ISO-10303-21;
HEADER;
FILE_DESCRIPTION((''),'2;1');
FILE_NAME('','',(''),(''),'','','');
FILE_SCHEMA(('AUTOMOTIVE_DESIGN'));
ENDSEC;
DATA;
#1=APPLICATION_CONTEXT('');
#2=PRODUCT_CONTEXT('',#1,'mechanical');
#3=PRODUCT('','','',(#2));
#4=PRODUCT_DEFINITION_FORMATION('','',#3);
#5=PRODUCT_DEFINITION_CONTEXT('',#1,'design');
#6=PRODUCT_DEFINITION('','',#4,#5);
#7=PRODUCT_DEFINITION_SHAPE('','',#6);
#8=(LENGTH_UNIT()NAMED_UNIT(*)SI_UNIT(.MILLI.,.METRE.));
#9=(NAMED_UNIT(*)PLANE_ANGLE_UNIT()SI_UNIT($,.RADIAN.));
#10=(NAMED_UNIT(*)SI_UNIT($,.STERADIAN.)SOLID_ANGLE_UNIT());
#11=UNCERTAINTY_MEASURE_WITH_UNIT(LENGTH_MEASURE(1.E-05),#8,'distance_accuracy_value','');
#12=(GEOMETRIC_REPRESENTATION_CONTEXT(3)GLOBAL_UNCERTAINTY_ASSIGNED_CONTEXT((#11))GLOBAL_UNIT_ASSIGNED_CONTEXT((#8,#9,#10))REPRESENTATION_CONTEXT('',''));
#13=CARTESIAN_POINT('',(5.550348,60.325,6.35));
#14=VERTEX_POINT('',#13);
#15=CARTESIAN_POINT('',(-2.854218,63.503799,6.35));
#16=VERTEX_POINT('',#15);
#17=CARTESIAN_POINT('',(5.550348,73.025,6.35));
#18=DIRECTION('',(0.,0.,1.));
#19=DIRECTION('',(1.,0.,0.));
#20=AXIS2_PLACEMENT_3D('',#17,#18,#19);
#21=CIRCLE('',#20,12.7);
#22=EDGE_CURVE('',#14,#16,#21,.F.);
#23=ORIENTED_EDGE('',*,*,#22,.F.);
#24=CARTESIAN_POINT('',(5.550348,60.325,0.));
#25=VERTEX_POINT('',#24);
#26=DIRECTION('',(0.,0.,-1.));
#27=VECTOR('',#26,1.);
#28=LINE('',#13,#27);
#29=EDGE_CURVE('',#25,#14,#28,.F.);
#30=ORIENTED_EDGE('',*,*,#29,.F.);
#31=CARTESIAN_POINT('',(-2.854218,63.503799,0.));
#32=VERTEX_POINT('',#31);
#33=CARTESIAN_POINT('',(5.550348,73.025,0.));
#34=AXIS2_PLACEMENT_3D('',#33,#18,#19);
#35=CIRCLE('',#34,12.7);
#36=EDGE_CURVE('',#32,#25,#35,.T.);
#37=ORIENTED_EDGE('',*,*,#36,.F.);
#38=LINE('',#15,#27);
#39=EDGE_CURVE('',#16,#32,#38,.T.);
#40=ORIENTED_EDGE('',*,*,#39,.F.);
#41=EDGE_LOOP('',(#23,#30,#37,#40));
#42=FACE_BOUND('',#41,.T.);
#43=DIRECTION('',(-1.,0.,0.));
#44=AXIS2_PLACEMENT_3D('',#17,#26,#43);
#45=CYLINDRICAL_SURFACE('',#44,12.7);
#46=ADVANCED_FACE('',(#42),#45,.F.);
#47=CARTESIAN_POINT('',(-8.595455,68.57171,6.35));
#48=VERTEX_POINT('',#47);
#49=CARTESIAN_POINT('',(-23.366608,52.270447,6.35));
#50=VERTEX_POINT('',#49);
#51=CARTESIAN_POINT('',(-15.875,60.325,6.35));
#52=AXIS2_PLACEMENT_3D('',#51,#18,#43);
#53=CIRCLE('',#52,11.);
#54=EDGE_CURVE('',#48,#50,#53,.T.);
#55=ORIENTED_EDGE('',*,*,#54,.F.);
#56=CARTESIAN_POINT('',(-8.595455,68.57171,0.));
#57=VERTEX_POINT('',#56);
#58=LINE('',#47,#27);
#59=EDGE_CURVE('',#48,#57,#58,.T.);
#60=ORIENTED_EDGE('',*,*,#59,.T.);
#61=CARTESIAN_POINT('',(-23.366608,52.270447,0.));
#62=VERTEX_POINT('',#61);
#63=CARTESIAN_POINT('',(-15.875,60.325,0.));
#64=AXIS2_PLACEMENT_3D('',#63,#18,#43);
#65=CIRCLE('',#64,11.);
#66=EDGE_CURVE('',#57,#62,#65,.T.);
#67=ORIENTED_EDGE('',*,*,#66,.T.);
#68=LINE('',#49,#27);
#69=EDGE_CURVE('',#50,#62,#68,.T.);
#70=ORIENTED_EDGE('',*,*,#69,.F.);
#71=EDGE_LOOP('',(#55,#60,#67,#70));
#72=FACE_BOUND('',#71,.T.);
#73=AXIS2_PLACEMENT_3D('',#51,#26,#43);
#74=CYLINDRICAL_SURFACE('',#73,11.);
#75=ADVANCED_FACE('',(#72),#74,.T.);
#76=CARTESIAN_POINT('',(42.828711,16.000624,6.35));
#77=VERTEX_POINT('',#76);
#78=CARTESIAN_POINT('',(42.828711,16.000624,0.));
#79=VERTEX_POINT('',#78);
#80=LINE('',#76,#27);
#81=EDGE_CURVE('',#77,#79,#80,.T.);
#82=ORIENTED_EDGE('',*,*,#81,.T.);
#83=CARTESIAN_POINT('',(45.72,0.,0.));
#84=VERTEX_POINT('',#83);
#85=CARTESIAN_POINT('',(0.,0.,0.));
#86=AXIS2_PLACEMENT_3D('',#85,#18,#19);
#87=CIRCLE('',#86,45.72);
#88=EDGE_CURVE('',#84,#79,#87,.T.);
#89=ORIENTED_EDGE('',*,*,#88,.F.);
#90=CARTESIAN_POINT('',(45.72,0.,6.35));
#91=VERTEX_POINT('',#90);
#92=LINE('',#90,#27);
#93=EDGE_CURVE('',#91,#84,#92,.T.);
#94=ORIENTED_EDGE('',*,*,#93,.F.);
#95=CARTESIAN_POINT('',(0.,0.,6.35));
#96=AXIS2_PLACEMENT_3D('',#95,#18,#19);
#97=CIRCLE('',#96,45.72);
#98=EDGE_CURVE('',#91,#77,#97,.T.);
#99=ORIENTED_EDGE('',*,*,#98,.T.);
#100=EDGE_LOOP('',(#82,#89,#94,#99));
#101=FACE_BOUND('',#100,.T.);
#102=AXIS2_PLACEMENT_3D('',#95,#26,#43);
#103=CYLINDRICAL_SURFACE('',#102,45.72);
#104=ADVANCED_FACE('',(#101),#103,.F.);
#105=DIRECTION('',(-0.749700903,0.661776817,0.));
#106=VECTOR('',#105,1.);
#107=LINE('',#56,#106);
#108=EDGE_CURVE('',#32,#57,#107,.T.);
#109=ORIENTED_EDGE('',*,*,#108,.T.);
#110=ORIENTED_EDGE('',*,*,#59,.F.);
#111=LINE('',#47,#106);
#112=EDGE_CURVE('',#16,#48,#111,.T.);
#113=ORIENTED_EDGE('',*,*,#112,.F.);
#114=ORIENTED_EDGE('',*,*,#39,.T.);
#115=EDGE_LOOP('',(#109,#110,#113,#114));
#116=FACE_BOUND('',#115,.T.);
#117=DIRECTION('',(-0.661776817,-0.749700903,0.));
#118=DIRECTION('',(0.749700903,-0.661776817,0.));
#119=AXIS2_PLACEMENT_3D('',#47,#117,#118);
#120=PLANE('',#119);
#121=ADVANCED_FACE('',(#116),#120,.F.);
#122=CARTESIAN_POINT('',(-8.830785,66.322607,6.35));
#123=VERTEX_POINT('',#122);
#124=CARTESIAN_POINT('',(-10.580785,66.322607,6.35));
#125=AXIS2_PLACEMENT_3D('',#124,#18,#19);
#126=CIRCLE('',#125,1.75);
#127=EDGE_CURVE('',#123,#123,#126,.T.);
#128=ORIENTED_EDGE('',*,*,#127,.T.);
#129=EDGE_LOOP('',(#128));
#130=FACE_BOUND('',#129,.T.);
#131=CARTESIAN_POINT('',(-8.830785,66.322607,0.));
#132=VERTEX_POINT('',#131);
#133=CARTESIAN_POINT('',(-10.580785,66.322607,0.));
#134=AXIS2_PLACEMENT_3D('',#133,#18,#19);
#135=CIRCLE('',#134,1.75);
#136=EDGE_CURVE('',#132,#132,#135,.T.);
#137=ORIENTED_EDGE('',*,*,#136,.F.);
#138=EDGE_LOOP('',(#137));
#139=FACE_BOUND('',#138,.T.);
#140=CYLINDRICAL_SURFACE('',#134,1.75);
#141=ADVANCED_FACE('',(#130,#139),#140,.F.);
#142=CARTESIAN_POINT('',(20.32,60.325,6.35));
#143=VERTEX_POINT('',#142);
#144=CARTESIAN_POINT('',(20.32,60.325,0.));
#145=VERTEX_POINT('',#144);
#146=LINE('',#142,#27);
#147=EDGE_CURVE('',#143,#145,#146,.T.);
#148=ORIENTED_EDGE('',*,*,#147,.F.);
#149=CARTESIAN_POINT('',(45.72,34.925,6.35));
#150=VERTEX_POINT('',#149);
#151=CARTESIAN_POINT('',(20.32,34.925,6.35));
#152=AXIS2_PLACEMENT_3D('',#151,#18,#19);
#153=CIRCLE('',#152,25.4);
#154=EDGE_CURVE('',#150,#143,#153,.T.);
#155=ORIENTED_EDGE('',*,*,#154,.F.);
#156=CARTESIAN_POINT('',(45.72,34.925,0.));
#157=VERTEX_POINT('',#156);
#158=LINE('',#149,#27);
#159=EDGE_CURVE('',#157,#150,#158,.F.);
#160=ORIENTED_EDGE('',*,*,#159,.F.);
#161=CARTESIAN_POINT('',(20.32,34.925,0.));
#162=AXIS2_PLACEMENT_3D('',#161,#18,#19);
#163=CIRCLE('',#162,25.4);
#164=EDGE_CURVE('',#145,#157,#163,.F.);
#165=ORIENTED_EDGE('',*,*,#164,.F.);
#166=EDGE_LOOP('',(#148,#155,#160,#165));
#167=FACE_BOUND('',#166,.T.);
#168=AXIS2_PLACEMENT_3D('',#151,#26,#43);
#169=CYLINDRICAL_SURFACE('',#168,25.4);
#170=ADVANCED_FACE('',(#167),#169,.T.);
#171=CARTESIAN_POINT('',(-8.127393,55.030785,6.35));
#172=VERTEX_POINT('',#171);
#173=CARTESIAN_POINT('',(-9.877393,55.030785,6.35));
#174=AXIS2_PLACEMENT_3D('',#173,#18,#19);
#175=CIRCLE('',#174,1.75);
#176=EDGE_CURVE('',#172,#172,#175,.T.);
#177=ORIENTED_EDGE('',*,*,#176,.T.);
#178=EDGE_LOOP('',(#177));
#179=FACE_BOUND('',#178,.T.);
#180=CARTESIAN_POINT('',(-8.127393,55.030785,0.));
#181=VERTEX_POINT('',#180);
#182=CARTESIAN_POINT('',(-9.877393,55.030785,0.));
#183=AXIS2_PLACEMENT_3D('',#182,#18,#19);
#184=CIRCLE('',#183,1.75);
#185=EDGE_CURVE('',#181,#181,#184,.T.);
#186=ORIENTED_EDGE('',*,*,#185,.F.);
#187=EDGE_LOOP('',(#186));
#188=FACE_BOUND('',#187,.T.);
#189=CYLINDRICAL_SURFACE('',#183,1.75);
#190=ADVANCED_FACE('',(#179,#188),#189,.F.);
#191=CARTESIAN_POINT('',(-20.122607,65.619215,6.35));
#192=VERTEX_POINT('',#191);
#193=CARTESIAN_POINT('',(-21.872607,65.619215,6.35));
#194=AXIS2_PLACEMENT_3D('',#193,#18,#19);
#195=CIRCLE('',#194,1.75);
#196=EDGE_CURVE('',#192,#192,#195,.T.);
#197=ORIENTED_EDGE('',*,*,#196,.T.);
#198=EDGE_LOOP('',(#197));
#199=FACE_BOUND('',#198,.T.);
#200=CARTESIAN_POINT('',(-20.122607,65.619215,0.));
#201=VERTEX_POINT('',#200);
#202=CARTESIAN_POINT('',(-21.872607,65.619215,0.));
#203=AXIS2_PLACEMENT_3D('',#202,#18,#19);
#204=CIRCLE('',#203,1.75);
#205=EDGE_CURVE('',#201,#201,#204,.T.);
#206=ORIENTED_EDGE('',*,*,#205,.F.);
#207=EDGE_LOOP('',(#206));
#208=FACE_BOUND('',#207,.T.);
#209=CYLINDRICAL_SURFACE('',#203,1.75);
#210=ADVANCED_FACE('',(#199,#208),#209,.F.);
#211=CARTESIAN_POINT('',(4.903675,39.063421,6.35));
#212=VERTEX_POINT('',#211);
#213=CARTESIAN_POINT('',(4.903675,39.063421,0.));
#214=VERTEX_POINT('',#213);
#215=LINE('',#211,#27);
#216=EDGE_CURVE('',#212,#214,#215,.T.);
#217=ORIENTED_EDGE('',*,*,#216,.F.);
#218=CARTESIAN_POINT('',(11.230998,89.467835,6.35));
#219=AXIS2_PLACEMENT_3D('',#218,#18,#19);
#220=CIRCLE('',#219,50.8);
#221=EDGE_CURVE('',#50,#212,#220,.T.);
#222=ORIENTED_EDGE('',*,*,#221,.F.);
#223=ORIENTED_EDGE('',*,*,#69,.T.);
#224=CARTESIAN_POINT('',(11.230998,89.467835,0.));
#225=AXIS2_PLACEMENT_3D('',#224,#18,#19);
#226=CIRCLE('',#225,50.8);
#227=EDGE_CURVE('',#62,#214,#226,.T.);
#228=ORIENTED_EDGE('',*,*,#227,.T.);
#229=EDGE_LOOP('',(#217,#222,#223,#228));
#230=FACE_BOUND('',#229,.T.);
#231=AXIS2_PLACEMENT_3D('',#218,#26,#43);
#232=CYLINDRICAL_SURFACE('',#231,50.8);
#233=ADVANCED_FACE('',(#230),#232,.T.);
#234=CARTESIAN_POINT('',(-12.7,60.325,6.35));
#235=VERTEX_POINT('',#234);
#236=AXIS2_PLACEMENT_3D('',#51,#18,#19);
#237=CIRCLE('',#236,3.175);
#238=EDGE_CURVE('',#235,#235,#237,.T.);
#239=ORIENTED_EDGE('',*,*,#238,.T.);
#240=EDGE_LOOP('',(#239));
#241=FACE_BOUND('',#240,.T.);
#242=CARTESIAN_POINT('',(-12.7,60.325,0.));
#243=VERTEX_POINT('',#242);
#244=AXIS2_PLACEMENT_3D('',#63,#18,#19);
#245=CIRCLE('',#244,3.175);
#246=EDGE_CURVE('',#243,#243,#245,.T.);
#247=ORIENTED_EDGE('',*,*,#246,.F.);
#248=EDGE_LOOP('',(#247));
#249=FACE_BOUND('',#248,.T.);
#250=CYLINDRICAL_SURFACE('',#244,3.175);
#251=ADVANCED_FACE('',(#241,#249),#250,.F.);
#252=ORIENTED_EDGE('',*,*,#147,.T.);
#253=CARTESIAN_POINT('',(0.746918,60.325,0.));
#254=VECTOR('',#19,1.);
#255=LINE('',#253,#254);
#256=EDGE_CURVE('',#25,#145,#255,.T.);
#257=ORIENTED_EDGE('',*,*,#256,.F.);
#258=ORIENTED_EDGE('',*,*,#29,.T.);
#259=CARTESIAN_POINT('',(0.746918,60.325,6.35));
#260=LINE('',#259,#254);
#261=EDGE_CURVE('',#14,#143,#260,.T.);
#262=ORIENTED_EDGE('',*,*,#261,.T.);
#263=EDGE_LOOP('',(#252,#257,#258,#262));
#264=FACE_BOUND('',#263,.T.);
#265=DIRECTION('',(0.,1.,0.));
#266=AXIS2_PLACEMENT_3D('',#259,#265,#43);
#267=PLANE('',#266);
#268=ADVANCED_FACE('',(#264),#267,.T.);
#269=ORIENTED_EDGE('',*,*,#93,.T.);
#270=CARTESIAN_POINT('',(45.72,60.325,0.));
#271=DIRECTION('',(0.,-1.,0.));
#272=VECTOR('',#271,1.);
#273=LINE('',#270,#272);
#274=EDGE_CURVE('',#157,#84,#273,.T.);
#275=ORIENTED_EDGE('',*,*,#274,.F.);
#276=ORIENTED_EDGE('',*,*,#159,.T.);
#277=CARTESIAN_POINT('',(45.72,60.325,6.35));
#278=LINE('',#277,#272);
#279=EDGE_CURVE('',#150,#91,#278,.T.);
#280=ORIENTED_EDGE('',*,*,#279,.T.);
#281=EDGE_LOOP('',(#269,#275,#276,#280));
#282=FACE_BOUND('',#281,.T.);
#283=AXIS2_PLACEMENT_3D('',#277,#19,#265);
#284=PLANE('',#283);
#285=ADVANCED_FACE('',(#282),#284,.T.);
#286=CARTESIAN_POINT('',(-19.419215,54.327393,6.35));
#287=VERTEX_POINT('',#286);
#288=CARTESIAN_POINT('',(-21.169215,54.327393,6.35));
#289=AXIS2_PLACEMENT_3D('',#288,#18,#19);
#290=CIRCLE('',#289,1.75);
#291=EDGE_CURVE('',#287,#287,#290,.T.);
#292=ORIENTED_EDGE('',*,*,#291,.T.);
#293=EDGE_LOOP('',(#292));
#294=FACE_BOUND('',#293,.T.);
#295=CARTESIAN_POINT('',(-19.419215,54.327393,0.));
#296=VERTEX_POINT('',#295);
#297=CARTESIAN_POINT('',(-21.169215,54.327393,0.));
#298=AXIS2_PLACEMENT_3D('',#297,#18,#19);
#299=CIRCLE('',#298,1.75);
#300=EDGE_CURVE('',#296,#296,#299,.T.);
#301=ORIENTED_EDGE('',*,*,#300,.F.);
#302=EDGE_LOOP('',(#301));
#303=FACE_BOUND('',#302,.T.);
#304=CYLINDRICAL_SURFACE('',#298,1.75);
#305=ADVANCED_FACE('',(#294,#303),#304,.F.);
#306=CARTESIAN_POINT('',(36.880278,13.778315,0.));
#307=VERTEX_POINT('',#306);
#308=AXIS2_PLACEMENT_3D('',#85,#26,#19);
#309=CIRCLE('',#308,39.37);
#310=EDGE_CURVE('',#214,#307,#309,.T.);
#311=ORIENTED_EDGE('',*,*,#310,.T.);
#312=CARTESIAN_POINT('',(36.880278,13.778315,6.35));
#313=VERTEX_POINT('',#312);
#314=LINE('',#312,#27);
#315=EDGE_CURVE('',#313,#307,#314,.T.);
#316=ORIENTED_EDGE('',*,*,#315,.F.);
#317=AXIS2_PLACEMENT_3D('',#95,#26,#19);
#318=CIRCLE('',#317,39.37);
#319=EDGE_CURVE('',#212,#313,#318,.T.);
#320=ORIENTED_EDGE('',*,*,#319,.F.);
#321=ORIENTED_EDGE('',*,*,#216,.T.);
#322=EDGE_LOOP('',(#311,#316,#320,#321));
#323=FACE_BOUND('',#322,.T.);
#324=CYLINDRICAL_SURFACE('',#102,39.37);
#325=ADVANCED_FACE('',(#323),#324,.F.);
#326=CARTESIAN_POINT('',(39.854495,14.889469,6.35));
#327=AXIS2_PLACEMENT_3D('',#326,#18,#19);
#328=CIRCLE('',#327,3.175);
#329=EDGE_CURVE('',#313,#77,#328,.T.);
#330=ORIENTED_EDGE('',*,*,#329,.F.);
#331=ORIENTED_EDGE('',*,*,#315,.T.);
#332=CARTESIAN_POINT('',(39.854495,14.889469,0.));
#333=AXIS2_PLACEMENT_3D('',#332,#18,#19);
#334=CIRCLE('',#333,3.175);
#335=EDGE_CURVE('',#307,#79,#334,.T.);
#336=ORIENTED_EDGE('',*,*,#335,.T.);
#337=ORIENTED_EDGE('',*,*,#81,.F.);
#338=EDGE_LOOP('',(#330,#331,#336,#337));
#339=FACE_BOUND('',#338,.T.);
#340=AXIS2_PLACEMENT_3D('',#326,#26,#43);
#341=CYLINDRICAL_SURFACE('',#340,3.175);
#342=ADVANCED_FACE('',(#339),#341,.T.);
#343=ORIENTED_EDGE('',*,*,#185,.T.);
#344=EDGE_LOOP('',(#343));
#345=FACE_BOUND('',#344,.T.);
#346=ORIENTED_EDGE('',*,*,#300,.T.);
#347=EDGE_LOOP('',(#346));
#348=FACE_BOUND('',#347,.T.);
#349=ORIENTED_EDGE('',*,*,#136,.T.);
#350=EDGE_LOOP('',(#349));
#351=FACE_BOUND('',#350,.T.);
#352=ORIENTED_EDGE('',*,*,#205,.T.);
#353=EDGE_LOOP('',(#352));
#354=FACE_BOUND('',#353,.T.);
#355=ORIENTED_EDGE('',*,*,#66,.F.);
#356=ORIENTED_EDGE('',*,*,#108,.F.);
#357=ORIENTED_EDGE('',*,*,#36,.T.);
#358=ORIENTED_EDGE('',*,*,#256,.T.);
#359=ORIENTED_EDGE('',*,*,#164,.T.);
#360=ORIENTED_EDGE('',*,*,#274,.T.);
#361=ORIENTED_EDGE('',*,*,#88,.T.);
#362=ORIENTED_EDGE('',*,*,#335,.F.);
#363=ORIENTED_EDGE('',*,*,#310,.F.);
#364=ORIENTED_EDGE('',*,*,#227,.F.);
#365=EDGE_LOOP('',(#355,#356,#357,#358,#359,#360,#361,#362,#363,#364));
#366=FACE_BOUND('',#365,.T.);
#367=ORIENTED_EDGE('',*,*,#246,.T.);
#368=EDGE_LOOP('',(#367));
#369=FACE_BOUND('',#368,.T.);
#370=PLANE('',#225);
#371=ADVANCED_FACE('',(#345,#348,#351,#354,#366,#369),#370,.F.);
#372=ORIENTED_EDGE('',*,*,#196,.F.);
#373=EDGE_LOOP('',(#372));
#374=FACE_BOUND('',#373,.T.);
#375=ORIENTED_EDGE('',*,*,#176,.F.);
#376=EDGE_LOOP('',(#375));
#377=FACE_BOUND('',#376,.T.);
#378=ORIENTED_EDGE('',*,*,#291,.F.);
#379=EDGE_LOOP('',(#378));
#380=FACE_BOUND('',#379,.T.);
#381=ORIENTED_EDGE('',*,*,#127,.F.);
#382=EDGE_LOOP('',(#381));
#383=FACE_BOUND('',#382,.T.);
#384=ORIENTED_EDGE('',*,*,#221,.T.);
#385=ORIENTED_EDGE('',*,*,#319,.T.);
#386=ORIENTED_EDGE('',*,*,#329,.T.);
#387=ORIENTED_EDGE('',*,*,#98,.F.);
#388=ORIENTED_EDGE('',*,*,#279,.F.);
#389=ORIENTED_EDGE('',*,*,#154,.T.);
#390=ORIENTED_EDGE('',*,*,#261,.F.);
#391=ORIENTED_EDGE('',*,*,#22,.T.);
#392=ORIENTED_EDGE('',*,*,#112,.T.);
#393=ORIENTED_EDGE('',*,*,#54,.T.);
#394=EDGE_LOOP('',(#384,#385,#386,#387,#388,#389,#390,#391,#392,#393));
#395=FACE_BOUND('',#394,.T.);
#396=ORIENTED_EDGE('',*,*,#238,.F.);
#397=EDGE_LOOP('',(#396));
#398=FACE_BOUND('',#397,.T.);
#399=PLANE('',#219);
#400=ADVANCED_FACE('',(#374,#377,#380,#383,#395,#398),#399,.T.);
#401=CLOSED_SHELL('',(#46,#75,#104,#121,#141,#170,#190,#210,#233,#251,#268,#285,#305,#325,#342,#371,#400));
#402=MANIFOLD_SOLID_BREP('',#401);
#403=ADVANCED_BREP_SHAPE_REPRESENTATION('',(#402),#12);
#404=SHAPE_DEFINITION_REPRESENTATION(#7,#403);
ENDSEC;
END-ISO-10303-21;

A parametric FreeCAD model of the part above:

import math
import FreeCAD as App
import Part
import Sketcher

V = App.Vector
Q = App.Units.Quantity


def edges_at(feature, points):
    """Names of the edges that pass closest to the given points."""
    edges = feature.Shape.Edges
    near = lambda p: min(range(len(edges)), key=lambda i: edges[i].distToShape(Part.Vertex(*p))[0])
    return sorted({f"Edge{near(p) + 1}" for p in points})

doc = App.newDocument("Part")
params = doc.addObject("Spreadsheet::Sheet", "Params")
for row, (alias, value) in enumerate([
    ("sketch1_radius", "2 in"),
    ("sketch1_radius2", "1.8 in"),
    ("sketch1_radius3", "1.55 in"),
    ("pad1_length", "0.25 in"),
    ("sketch2_diameter", "0.25 in"),
    ("sketch3_radius", "1.8 in"),
    ("sketch3_height", "2.375 in"),
    ("pad2_length", "0.25 in"),
    ("fillet_radius", "0.5 in"),
    ("fillet2_radius", "1 in"),
], start=1):
    params.set(f"A{row}", alias)
    params.set(f"B{row}", "=" + value)
    params.setAlias(f"B{row}", alias)

body = doc.addObject("PartDesign::Body", "Body")

sketch1 = doc.addObject("Sketcher::SketchObject", "Sketch")
body.addObject(sketch1)
sketch1.AttachmentSupport = (doc.XY_Plane, [""])
sketch1.MapMode = "FlatFace"
sketch1.addGeometry([
    Part.LineSegment(V(30.3, 34.3, 0), V(-8.6, 68.6, 0)),
    Part.ArcOfCircle(Part.Circle(V(-15.9, 60.3, 0), V(0, 0, 1), 11), math.radians(49), math.radians(227)),
    Part.ArcOfCircle(Part.Circle(V(11.2, 89.5, 0), V(0, 0, 1), 50.8), math.radians(-133), math.radians(-97)),
    Part.ArcOfCircle(Part.Circle(V(0, 0, 0), V(0, 0, 1), 39.4), math.radians(20), math.radians(83)),
    Part.ArcOfCircle(Part.Circle(V(39.9, 14.9, 0), V(0, 0, 1), 3.2), math.radians(-160), math.radians(20)),
    Part.ArcOfCircle(Part.Circle(V(0, 0, 0), V(0, 0, 1), 45.7), math.radians(20), math.radians(49)),
], False)
sketch1.addConstraint([
    Sketcher.Constraint("Tangent", 0, 2, 1, 1),
    Sketcher.Constraint("Tangent", 1, 2, 2, 1),
    Sketcher.Constraint("Tangent", 2, 2, 3, 2),
    Sketcher.Constraint("Tangent", 3, 1, 4, 1),
    Sketcher.Constraint("Tangent", 4, 2, 5, 1),
    Sketcher.Constraint("Tangent", 5, 2, 0, 1),
    Sketcher.Constraint("Coincident", 3, 3, -1, 1),
    Sketcher.Constraint("Coincident", 5, 3, -1, 1),
    Sketcher.Constraint("Radius", 2, Q("2 in")),
    Sketcher.Constraint("Radius", 5, Q("1.8 in")),
    Sketcher.Constraint("Radius", 3, Q("1.55 in")),
    Sketcher.Constraint("Radius", 1, 11.0),
    Sketcher.Constraint("DistanceX", 1, 3, -1, 1, Q("0.625 in")),
    Sketcher.Constraint("DistanceY", -1, 1, 1, 3, Q("2.375 in")),
    Sketcher.Constraint("DistanceY", 4, 2, 5, 2, 18.275702),
])
sketch1.setExpression("Constraints[8]", "Params.sketch1_radius")
sketch1.setExpression("Constraints[9]", "Params.sketch1_radius2")
sketch1.setExpression("Constraints[10]", "Params.sketch1_radius3")
pad1 = doc.addObject("PartDesign::Pad", "Pad")
body.addObject(pad1)
pad1.Profile = sketch1
pad1.setExpression("Length", "Params.pad1_length")

sketch2 = doc.addObject("Sketcher::SketchObject", "Sketch001")
body.addObject(sketch2)
sketch2.AttachmentSupport = (doc.XY_Plane, [""])
sketch2.MapMode = "FlatFace"
sketch2.AttachmentOffset = App.Placement(V(0, 0, 0.25 * 25.4), App.Rotation())
sketch2.addGeometry([
    Part.Circle(V(-15.9, 60.3, 0), V(0, 0, 1), 3.2),
    Part.Circle(V(-10.6, 66.3, 0), V(0, 0, 1), 1.8),
    Part.Circle(V(-9.9, 55, 0), V(0, 0, 1), 1.8),
    Part.Circle(V(-21.2, 54.3, 0), V(0, 0, 1), 1.8),
    Part.Circle(V(-21.9, 65.6, 0), V(0, 0, 1), 1.8),
], False)
sketch2.addConstraint([
    Sketcher.Constraint("Equal", 1, 2),
    Sketcher.Constraint("Equal", 2, 3),
    Sketcher.Constraint("Equal", 3, 4),
    Sketcher.Constraint("Diameter", 0, Q("0.25 in")),
    Sketcher.Constraint("Diameter", 1, 3.5),
    Sketcher.Constraint("DistanceX", 0, 3, -1, 1, Q("0.625 in")),
    Sketcher.Constraint("DistanceY", -1, 1, 0, 3, Q("2.375 in")),
    Sketcher.Constraint("DistanceY", 2, 3, 1, 3, 11.291822),
    Sketcher.Constraint("DistanceX", 3, 3, 2, 3, 11.291822),
    Sketcher.Constraint("DistanceX", 3, 3, 1, 3, 10.588429),
    Sketcher.Constraint("DistanceY", 3, 3, 4, 3, 11.291822),
    Sketcher.Constraint("DistanceX", 4, 3, 1, 3, 11.291822),
    Sketcher.Constraint("DistanceY", 2, 3, 4, 3, 10.588429),
    Sketcher.Constraint("DistanceX", 1, 3, -1, 1, 10.580785),
    Sketcher.Constraint("DistanceY", -1, 1, 1, 3, 66.322607),
])
sketch2.setExpression("Constraints[3]", "Params.sketch2_diameter")
pocket1 = doc.addObject("PartDesign::Pocket", "Pocket")
body.addObject(pocket1)
pocket1.Profile = sketch2
pocket1.Type = "ThroughAll"

sketch3 = doc.addObject("Sketcher::SketchObject", "Sketch002")
body.addObject(sketch3)
sketch3.AttachmentSupport = (doc.XY_Plane, [""])
sketch3.MapMode = "FlatFace"
sketch3.addGeometry([
    Part.LineSegment(V(1, 60, 0), V(46, 60, 0)),
    Part.LineSegment(V(46, 60, 0), V(46, 0, 0)),
    Part.ArcOfCircle(Part.Circle(V(0, 0, 0), V(0, 0, 1), 46), math.radians(0), math.radians(49)),
    Part.LineSegment(V(30, 34, 0), V(1, 60, 0)),
], False)
sketch3.addConstraint([
    Sketcher.Constraint("Coincident", 0, 2, 1, 1),
    Sketcher.Constraint("Tangent", 1, 2, 2, 1),
    Sketcher.Constraint("Tangent", 2, 2, 3, 1),
    Sketcher.Constraint("Coincident", 3, 2, 0, 1),
    Sketcher.Constraint("Horizontal", 0),
    Sketcher.Constraint("Vertical", 1),
    Sketcher.Constraint("Coincident", 2, 3, -1, 1),
    Sketcher.Constraint("Radius", 2, Q("1.8 in")),
    Sketcher.Constraint("DistanceY", 1, 2, 1, 1, Q("2.375 in")),
    Sketcher.Constraint("DistanceX", 0, 1, 0, 2, 44.973082),
])
sketch3.setExpression("Constraints[7]", "Params.sketch3_radius")
sketch3.setExpression("Constraints[8]", "Params.sketch3_height")
pad2 = doc.addObject("PartDesign::Pad", "Pad001")
body.addObject(pad2)
pad2.Profile = sketch3
pad2.setExpression("Length", "Params.pad2_length")
doc.recompute()

fillet = doc.addObject("PartDesign::Fillet", "Fillet")
body.addObject(fillet)
fillet.Base = (pad2, edges_at(pad2, [(0.747, 60.325, 3.175)]))
fillet.setExpression("Radius", "Params.fillet_radius")
doc.recompute()

fillet2 = doc.addObject("PartDesign::Fillet", "Fillet001")
body.addObject(fillet2)
fillet2.Base = (fillet, edges_at(fillet, [(45.72, 60.325, 3.175)]))
fillet2.setExpression("Radius", "Params.fillet2_radius")

doc.recompute()
